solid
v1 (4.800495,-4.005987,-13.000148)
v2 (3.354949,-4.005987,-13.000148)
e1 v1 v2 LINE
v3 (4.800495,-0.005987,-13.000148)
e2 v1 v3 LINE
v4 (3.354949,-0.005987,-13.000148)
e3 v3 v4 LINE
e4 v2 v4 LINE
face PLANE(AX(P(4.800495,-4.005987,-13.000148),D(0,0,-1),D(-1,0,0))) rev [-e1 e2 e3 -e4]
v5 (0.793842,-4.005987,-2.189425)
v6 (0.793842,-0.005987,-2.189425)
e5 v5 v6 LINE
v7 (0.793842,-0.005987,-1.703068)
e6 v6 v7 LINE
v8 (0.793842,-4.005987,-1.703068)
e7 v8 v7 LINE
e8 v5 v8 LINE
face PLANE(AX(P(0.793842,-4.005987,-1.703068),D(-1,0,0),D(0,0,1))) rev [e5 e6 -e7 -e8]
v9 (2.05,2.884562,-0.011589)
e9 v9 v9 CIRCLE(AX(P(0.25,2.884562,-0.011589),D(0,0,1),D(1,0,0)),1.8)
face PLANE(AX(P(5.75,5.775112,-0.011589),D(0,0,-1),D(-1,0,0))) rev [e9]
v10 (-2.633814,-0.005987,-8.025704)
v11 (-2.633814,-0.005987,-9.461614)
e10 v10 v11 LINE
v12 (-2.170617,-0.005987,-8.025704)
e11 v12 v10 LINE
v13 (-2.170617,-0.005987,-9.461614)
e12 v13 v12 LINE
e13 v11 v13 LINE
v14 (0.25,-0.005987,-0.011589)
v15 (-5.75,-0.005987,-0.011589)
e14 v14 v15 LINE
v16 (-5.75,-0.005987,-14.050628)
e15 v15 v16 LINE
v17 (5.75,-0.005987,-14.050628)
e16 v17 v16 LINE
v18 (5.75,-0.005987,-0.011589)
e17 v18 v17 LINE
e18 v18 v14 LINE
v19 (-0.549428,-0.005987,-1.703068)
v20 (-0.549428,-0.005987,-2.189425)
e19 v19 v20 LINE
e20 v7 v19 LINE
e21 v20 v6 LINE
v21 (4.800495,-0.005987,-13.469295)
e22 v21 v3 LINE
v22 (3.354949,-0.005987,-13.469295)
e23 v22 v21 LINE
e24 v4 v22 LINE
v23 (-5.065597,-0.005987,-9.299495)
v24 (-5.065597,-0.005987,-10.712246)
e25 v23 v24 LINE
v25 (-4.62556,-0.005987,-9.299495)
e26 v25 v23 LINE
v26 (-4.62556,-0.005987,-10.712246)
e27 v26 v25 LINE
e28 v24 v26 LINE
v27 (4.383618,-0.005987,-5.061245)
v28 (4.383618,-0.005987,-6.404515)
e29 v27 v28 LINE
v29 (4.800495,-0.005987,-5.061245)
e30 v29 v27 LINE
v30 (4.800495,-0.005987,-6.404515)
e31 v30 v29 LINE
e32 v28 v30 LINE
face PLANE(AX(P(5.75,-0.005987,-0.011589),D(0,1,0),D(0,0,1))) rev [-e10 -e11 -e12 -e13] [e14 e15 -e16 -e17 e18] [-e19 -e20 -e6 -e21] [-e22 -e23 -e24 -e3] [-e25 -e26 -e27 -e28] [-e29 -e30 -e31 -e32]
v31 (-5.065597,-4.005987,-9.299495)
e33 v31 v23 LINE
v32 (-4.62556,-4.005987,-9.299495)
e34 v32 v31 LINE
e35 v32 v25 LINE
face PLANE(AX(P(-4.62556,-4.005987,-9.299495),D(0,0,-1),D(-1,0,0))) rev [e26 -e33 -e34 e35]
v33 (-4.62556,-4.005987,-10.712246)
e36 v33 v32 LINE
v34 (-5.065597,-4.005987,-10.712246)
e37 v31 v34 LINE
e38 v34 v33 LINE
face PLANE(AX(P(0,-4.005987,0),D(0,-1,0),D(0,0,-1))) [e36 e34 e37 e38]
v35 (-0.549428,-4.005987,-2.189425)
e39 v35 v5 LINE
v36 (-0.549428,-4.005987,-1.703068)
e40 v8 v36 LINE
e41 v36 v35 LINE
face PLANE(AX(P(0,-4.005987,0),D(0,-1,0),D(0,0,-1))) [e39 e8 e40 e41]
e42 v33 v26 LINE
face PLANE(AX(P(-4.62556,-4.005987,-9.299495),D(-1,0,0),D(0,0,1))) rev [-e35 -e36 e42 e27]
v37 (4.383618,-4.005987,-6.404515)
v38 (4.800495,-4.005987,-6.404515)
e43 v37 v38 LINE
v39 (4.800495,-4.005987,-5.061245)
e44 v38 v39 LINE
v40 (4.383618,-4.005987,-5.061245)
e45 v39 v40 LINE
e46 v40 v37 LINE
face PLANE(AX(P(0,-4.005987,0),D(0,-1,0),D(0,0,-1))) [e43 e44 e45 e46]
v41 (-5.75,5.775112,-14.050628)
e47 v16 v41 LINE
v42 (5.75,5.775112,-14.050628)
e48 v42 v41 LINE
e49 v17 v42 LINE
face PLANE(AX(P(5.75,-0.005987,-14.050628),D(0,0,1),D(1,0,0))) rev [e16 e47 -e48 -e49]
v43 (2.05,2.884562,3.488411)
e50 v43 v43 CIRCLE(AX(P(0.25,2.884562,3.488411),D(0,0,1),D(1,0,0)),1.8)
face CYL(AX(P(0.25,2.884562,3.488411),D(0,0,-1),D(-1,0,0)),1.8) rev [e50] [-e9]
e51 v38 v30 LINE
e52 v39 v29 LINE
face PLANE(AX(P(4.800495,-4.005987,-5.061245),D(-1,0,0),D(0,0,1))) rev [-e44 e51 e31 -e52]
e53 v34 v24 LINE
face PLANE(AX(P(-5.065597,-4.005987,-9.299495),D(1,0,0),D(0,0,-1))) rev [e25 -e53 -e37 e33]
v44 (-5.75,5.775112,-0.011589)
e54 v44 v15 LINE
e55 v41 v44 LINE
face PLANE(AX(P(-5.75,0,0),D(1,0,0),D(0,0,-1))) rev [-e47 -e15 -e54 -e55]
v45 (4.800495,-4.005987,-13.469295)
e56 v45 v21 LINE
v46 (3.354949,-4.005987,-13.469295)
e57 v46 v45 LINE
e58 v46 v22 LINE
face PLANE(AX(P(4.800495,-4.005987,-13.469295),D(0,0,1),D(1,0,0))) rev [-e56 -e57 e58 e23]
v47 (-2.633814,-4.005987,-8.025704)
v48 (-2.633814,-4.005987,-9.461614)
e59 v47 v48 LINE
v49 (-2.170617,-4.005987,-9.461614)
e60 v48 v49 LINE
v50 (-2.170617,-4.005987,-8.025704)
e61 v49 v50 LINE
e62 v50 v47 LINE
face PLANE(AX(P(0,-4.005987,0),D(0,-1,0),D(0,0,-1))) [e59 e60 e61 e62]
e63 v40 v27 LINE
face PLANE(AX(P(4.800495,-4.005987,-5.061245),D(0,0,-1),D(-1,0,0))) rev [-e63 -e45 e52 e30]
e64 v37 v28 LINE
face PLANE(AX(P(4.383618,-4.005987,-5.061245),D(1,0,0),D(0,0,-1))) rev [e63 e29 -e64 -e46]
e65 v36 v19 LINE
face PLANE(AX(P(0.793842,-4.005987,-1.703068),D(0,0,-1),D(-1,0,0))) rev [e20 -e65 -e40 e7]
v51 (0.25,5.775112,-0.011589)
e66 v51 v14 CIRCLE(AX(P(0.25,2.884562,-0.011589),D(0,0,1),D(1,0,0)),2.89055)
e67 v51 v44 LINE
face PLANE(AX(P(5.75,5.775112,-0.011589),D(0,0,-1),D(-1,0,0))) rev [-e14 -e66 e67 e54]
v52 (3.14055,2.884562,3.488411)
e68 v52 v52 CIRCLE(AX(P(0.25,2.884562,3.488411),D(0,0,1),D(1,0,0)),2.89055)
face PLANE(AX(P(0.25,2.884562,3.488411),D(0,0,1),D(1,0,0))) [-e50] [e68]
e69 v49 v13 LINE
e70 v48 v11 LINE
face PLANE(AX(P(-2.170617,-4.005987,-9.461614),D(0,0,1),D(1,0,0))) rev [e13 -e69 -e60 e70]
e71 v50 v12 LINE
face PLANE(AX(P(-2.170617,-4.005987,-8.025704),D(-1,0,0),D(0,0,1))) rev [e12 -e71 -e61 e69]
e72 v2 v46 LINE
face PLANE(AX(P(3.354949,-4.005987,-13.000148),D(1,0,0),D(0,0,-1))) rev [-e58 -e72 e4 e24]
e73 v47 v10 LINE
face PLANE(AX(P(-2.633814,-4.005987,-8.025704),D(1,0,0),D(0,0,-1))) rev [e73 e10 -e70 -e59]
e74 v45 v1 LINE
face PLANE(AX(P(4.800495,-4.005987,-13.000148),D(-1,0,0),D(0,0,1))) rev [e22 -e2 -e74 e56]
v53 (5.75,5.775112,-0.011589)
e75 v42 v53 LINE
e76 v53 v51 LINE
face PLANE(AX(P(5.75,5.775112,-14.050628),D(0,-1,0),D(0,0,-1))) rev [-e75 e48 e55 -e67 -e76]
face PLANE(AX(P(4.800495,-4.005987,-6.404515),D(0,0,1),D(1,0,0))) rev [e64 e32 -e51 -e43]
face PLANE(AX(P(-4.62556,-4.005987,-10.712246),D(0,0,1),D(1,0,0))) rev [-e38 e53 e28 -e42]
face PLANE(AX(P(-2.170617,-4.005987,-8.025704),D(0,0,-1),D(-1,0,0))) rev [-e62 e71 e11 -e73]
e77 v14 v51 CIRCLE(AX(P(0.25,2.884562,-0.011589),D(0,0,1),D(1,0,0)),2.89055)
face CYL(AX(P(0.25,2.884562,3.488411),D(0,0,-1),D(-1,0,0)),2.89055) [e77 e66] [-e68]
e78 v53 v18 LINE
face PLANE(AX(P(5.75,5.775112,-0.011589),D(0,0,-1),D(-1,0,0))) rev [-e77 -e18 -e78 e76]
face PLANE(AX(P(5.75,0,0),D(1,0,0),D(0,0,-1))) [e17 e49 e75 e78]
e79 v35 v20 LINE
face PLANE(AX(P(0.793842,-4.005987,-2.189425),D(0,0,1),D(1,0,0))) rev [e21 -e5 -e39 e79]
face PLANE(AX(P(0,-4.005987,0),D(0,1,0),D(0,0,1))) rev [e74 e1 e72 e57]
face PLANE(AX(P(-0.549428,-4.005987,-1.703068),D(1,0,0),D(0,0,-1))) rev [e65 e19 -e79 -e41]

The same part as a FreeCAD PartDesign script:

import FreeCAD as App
import Part
import Sketcher
from FreeCAD import Vector


def add_polygon(sketch, points):
    """Adds a closed chain of lines whose ends are joined by coincident constraints."""
    first, n = sketch.GeometryCount, len(points)
    for a, b in zip(points, points[1:] + points[:1]):
        sketch.addGeometry(Part.LineSegment(App.Vector(*a, 0), App.Vector(*b, 0)), False)
    for i in range(n):
        sketch.addConstraint(Sketcher.Constraint("Coincident", first + i, 2, first + (i + 1) % n, 1))

doc = App.newDocument("Part")
body = doc.addObject("PartDesign::Body", "Body")

sketch1 = doc.addObject("Sketcher::SketchObject", "Sketch")
body.addObject(sketch1)
sketch1.AttachmentSupport = (doc.YZ_Plane, [""])
sketch1.MapMode = "FlatFace"
add_polygon(sketch1, [(6, 0), (0, 0), (0, -14), (6, -14)])
sketch1.addConstraint([
    Sketcher.Constraint("Horizontal", 0),
    Sketcher.Constraint("Vertical", 1),
    Sketcher.Constraint("Horizontal", 2),
    Sketcher.Constraint("Vertical", 3),
    Sketcher.Constraint("DistanceX", 0, 2, 0, 1, 5.7811),
    Sketcher.Constraint("DistanceY", 1, 2, 1, 1, 14.039039),
    Sketcher.Constraint("DistanceY", 0, 2, -1, 1, 0.011589),
    Sketcher.Constraint("DistanceX", 0, 2, -1, 1, 0.005987),
])
pad1 = doc.addObject("PartDesign::Pad", "Pad")
body.addObject(pad1)
pad1.Profile = sketch1
pad1.Length = 11.5
pad1.Midplane = True

sketch2 = doc.addObject("Sketcher::SketchObject", "Sketch001")
body.addObject(sketch2)
sketch2.AttachmentSupport = (doc.XY_Plane, [""])
sketch2.MapMode = "FlatFace"
sketch2.AttachmentOffset = App.Placement(Vector(0, 0, -0.011589), App.Rotation())
sketch2.addGeometry([
    Part.Circle(Vector(0.2, 2.9, 0), Vector(0, 0, 1), 2.9),
    Part.Circle(Vector(0.2, 2.9, 0), Vector(0, 0, 1), 1.8),
], False)
sketch2.addConstraint([
    Sketcher.Constraint("Coincident", 1, 3, 0, 3),
    Sketcher.Constraint("Diameter", 1, 3.6),
    Sketcher.Constraint("Diameter", 0, 5.7811),
    Sketcher.Constraint("DistanceX", -1, 1, 0, 3, 0.25),
    Sketcher.Constraint("DistanceY", -1, 1, 0, 3, 2.884562),
])
pad2 = doc.addObject("PartDesign::Pad", "Pad001")
body.addObject(pad2)
pad2.Profile = sketch2
pad2.Length = 3.5

sketch3 = doc.addObject("Sketcher::SketchObject", "Sketch002")
body.addObject(sketch3)
sketch3.AttachmentSupport = (doc.XZ_Plane, [""])
sketch3.MapMode = "FlatFace"
sketch3.AttachmentOffset = App.Placement(Vector(0, 0, 0.005987), App.Rotation())
add_polygon(sketch3, [(3.35, -13), (3.35, -13.47), (4.8, -13.47), (4.8, -13)])
add_polygon(sketch3, [(-5.07, -9.3), (-5.07, -10.71), (-4.63, -10.71), (-4.63, -9.3)])
add_polygon(sketch3, [(-2.63, -8.03), (-2.63, -9.46), (-2.17, -9.46), (-2.17, -8.03)])
add_polygon(sketch3, [(4.38, -5.06), (4.38, -6.4), (4.8, -6.4), (4.8, -5.06)])
add_polygon(sketch3, [(-0.55, -1.7), (-0.55, -2.19), (0.79, -2.19), (0.79, -1.7)])
sketch3.addConstraint([
    Sketcher.Constraint("Vertical", 0),
    Sketcher.Constraint("Horizontal", 1),
    Sketcher.Constraint("Vertical", 2),
    Sketcher.Constraint("Horizontal", 3),
    Sketcher.Constraint("Vertical", 4),
    Sketcher.Constraint("Horizontal", 5),
    Sketcher.Constraint("Vertical", 6),
    Sketcher.Constraint("Horizontal", 7),
    Sketcher.Constraint("Vertical", 8),
    Sketcher.Constraint("Horizontal", 9),
    Sketcher.Constraint("Vertical", 10),
    Sketcher.Constraint("Horizontal", 11),
    Sketcher.Constraint("Vertical", 12),
    Sketcher.Constraint("Horizontal", 13),
    Sketcher.Constraint("Vertical", 14),
    Sketcher.Constraint("Horizontal", 15),
    Sketcher.Constraint("Vertical", 16),
    Sketcher.Constraint("Horizontal", 17),
    Sketcher.Constraint("Vertical", 18),
    Sketcher.Constraint("Horizontal", 19),
    Sketcher.Constraint("Vertical", 2, 2, 13, 2),
    Sketcher.Constraint("Equal", 19, 12),
    Sketcher.Constraint("DistanceX", 17, 1, 17, 2, 1.343271),
    Sketcher.Constraint("DistanceY", 4, 2, 4, 1, 1.41275),
    Sketcher.Constraint("DistanceY", 8, 2, 8, 1, 1.43591),
    Sketcher.Constraint("DistanceY", 3, 2, 4, 2, 2.287902),
    Sketcher.Constraint("DistanceY", 0, 2, 6, 2, 4.1698),
    Sketcher.Constraint("DistanceX", 1, 1, 1, 2, 1.445545),
    Sketcher.Constraint("DistanceX", 5, 1, 5, 2, 0.440037),
    Sketcher.Constraint("DistanceX", 9, 1, 9, 2, 0.463197),
    Sketcher.Constraint("DistanceX", 13, 1, 13, 2, 0.416877),
    Sketcher.Constraint("DistanceY", 16, 2, 16, 1, 0.486357),
    Sketcher.Constraint("DistanceX", -1, 1, 0, 2, 3.354949),
    Sketcher.Constraint("DistanceX", 5, 2, -1, 1, 4.62556),
    Sketcher.Constraint("DistanceX", 16, 2, -1, 1, 0.549428),
    Sketcher.Constraint("DistanceY", 18, 2, -1, 1, 1.703068),
    Sketcher.Constraint("DistanceY", 8, 2, 6, 2, 0.162119),
    Sketcher.Constraint("DistanceX", 7, 2, 9, 2, 2.89498),
    Sketcher.Constraint("DistanceY", 10, 2, 12, 2, 1.621189),
    Sketcher.Constraint("DistanceY", 15, 2, 16, 2, 2.87182),
])
pad3 = doc.addObject("PartDesign::Pad", "Pad002")
body.addObject(pad3)
pad3.Profile = sketch3
pad3.Length = 4

doc.recompute()
